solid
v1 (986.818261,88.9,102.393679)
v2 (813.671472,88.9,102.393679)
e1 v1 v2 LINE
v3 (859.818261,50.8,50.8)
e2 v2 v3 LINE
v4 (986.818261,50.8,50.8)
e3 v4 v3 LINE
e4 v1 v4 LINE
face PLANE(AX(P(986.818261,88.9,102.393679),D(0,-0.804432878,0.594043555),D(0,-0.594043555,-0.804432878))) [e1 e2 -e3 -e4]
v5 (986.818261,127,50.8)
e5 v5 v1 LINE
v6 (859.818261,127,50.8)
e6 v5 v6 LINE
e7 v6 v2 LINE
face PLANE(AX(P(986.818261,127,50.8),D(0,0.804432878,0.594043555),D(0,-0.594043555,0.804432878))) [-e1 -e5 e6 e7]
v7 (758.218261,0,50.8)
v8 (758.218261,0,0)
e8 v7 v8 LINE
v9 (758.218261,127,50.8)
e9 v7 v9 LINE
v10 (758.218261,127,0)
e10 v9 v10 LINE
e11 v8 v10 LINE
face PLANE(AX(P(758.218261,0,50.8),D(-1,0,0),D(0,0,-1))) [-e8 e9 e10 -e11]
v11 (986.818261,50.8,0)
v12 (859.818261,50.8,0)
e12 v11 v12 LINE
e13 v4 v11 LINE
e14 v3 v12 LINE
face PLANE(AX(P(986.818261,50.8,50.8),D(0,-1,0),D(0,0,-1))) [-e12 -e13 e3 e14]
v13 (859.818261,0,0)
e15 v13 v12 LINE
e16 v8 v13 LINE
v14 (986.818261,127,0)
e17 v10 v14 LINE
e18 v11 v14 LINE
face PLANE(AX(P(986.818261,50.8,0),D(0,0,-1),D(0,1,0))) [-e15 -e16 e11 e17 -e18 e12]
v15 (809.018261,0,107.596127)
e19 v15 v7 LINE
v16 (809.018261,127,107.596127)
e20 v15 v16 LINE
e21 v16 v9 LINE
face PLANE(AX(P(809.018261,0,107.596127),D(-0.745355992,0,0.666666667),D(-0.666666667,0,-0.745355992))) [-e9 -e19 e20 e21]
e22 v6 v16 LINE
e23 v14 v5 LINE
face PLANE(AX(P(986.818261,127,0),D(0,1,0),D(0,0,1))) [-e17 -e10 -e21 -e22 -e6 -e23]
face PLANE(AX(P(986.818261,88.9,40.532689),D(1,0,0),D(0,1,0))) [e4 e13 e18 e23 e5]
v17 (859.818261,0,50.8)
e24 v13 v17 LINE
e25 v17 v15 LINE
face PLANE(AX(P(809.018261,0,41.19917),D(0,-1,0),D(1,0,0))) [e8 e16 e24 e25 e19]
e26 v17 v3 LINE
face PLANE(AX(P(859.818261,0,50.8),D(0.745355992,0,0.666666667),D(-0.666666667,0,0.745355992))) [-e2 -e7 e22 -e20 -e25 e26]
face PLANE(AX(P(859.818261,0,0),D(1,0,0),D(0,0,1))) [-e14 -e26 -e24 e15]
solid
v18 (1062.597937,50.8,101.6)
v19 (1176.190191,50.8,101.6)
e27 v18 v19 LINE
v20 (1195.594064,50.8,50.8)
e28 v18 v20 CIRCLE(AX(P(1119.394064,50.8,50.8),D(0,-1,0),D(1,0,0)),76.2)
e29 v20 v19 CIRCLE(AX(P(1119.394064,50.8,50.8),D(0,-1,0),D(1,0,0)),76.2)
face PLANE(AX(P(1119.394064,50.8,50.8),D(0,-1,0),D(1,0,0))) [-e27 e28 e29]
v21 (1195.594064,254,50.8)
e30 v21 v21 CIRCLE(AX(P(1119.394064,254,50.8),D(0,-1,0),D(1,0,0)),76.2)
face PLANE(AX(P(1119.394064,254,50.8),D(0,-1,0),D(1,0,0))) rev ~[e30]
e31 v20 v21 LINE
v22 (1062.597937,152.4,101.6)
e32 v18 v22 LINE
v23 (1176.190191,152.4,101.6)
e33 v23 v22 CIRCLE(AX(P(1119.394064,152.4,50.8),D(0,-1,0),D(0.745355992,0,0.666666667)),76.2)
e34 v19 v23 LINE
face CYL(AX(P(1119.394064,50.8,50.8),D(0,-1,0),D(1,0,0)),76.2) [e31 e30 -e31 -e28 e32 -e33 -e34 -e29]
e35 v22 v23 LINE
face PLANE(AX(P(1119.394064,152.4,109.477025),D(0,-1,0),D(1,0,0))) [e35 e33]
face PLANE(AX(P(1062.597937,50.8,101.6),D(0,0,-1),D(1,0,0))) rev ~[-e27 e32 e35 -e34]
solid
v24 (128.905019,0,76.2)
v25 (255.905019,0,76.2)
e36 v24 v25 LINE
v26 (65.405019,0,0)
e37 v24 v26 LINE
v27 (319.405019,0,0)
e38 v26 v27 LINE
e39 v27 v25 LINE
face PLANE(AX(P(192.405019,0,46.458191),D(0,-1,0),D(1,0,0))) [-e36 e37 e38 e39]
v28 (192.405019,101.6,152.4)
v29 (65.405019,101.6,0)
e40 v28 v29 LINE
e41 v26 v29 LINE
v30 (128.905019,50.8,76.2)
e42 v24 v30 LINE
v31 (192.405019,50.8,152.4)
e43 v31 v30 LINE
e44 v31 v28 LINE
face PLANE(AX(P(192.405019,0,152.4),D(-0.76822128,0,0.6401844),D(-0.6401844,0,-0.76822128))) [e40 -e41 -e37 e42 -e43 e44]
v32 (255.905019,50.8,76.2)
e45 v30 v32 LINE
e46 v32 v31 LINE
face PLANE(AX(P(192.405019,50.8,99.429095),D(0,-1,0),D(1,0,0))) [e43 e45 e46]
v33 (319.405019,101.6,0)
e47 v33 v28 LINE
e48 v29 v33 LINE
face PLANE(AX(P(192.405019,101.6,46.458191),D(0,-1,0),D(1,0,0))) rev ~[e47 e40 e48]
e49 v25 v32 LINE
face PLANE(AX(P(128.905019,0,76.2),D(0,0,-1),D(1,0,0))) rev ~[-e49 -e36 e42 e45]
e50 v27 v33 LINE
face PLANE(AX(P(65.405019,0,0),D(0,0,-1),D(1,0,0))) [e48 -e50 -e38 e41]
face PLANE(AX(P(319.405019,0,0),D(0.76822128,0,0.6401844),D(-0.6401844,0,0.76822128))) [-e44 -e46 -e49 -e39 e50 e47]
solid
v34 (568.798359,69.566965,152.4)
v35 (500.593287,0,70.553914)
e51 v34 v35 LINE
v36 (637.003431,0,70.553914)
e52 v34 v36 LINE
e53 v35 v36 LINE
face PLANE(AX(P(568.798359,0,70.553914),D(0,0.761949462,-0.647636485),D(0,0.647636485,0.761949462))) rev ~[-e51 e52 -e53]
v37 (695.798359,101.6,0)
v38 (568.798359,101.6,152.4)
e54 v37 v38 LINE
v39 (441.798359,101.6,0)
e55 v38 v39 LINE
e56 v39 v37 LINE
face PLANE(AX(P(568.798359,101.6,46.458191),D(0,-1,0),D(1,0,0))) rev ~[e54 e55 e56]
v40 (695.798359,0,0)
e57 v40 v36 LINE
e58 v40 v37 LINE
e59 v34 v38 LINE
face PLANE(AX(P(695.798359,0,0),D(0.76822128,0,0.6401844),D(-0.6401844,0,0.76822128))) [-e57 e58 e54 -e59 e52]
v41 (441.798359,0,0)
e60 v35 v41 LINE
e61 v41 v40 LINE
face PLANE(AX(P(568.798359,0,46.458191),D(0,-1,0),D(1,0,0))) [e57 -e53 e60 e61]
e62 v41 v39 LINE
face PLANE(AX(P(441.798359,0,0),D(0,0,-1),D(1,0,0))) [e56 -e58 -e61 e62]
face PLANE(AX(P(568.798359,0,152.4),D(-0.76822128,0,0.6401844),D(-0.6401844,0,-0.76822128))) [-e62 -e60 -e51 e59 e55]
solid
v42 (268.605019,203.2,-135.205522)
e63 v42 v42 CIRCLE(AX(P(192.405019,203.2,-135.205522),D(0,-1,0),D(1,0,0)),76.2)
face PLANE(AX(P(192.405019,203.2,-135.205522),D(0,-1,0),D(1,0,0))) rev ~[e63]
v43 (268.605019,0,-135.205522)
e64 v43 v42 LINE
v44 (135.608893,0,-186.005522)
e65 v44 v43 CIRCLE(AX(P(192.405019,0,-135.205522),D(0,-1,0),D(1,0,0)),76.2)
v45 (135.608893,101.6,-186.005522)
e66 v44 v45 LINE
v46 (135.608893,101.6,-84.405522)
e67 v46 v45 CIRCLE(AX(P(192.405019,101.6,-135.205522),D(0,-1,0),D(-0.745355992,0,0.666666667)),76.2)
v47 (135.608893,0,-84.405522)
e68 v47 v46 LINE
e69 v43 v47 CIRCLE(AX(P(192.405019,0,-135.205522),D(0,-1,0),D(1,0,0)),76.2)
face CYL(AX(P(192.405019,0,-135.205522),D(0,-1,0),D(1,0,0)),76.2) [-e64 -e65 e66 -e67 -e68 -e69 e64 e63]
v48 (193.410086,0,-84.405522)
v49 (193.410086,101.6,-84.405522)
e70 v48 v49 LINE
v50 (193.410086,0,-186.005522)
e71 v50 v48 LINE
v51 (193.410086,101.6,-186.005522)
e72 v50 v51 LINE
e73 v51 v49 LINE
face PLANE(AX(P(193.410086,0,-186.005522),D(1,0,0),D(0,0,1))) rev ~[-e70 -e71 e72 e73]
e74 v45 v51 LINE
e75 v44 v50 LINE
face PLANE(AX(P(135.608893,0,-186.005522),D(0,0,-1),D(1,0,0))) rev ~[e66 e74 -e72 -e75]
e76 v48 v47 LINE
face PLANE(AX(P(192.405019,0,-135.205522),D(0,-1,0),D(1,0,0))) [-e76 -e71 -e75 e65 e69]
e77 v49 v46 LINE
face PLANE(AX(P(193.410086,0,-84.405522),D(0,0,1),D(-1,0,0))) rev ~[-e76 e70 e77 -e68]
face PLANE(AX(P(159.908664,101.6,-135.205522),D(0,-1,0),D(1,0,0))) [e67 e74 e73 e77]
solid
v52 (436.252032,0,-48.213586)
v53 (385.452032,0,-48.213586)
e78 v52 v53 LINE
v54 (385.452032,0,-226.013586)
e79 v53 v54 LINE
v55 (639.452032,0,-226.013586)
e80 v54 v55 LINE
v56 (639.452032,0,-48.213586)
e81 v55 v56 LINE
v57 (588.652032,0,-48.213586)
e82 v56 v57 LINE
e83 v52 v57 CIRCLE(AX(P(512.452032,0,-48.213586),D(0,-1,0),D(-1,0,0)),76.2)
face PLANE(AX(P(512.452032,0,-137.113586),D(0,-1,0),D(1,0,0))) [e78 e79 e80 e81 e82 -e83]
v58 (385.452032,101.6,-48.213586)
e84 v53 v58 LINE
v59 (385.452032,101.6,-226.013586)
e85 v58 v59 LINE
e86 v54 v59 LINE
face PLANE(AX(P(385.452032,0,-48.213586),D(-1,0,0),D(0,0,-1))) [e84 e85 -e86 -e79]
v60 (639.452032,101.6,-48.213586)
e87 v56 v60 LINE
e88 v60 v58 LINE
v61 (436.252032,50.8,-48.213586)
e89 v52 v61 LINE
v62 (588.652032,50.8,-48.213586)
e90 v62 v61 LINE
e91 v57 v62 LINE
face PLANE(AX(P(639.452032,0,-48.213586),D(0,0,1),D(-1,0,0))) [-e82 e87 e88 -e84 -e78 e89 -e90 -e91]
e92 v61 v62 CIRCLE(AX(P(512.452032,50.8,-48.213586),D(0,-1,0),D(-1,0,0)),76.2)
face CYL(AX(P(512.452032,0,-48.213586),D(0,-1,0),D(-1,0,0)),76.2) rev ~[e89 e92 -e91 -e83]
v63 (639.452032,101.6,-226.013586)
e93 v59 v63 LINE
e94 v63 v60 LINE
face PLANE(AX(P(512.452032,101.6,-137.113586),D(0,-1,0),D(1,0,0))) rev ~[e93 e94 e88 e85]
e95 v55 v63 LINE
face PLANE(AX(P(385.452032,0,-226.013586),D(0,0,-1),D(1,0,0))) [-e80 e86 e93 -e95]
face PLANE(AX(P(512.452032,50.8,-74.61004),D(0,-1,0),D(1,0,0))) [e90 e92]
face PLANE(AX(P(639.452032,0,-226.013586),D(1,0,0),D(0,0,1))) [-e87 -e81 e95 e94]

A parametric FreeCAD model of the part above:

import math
import FreeCAD as App
import Part
import Sketcher
from FreeCAD import Vector
Q = App.Units.Quantity


def add_polygon(sketch, points):
    """Adds a closed chain of lines whose ends are joined by coincident constraints."""
    first, n = sketch.GeometryCount, len(points)
    for a, b in zip(points, points[1:] + points[:1]):
        sketch.addGeometry(Part.LineSegment(App.Vector(*a, 0), App.Vector(*b, 0)), False)
    for i in range(n):
        sketch.addConstraint(Sketcher.Constraint("Coincident", first + i, 2, first + (i + 1) % n, 1))

doc = App.newDocument("Part")
body = doc.addObject("PartDesign::Body", "Body")

sketch1 = body.newObject("Sketcher::SketchObject", "Sketch")
sketch1.AttachmentSupport = (doc.getObject("XZ_Plane"), [""])
sketch1.MapMode = "FlatFace"
add_polygon(sketch1, [(192, 152), (65, 0), (319, 0)])
sketch1.addConstraint(Sketcher.Constraint("Horizontal", 1))
sketch1.addConstraint(Sketcher.Constraint("PointOnObject", 0, 2, -1))
sketch1.addConstraint(Sketcher.Constraint("Equal", 0, 2))
sketch1.addConstraint(Sketcher.Constraint("DistanceX", 1, 1, 1, 2, Q("10 in")))
sketch1.addConstraint(Sketcher.Constraint("DistanceY", -1, 1, 2, 2, Q("6 in")))
sketch1.addConstraint(Sketcher.Constraint("DistanceX", -1, 1, 0, 2, 65.405019))
pad1 = body.newObject("PartDesign::Pad", "Pad")
pad1.Profile = sketch1
pad1.Length = Q("4 in")
pad1.Reversed = True

sketch2 = body.newObject("Sketcher::SketchObject", "Sketch001")
sketch2.AttachmentSupport = (doc.getObject("XZ_Plane"), [""])
sketch2.MapMode = "FlatFace"
add_polygon(sketch2, [(192, 152), (129, 76), (256, 76)])
sketch2.addConstraint(Sketcher.Constraint("Horizontal", 1))
sketch2.addConstraint(Sketcher.Constraint("Equal", 0, 2))
sketch2.addConstraint(Sketcher.Constraint("DistanceX", 1, 1, 1, 2, Q("5 in")))
sketch2.addConstraint(Sketcher.Constraint("DistanceY", -1, 1, 0, 2, Q("3 in")))
sketch2.addConstraint(Sketcher.Constraint("DistanceY", -1, 1, 2, 2, Q("6 in")))
sketch2.addConstraint(Sketcher.Constraint("DistanceX", -1, 1, 0, 2, 128.905019))
pocket1 = body.newObject("PartDesign::Pocket", "Pocket")
pocket1.Profile = sketch2
pocket1.Length = Q("2 in")
body2 = doc.addObject("PartDesign::Body", "Body001")

sketch3 = body2.newObject("Sketcher::SketchObject", "Sketch002")
sketch3.AttachmentSupport = (doc.getObject("XZ_Plane001"), [""])
sketch3.MapMode = "FlatFace"
add_polygon(sketch3, [(569, 152), (442, 0), (696, 0)])
sketch3.addConstraint(Sketcher.Constraint("Horizontal", 1))
sketch3.addConstraint(Sketcher.Constraint("PointOnObject", 0, 2, -1))
sketch3.addConstraint(Sketcher.Constraint("Equal", 0, 2))
sketch3.addConstraint(Sketcher.Constraint("DistanceX", 1, 1, 1, 2, Q("10 in")))
sketch3.addConstraint(Sketcher.Constraint("DistanceY", -1, 1, 2, 2, Q("6 in")))
sketch3.addConstraint(Sketcher.Constraint("DistanceX", -1, 1, 0, 2, 441.798359))
pad2 = body2.newObject("PartDesign::Pad", "Pad001")
pad2.Profile = sketch3
pad2.Length = Q("4 in")
pad2.Reversed = True

sketch4 = body2.newObject("Sketcher::SketchObject", "Sketch003")
sketch4.AttachmentSupport = (doc.getObject("YZ_Plane001"), [""])
sketch4.MapMode = "FlatFace"
sketch4.AttachmentOffset = App.Placement(Vector(0, 0, 568.798359), App.Rotation())
add_polygon(sketch4, [(0, 152), (0, 71), (70, 152)])
sketch4.addConstraint(Sketcher.Constraint("Vertical", 0))
sketch4.addConstraint(Sketcher.Constraint("Horizontal", 2))
sketch4.addConstraint(Sketcher.Constraint("PointOnObject", 0, 2, -2))
sketch4.addConstraint(Sketcher.Constraint("DistanceY", -1, 1, 1, 2, Q("6 in")))
sketch4.addConstraint(Sketcher.Constraint("DistanceX", 2, 2, 2, 1, 69.566965))
sketch4.addConstraint(Sketcher.Constraint("DistanceY", 0, 2, 0, 1, 81.846086))
pocket2 = body2.newObject("PartDesign::Pocket", "Pocket001")
pocket2.Profile = sketch4
pocket2.Type = "ThroughAll"
pocket2.Midplane = True
body3 = doc.addObject("PartDesign::Body", "Body002")

sketch5 = body3.newObject("Sketcher::SketchObject", "Sketch004")
sketch5.AttachmentSupport = (doc.getObject("XZ_Plane002"), [""])
sketch5.MapMode = "FlatFace"
add_polygon(sketch5, [(758, 51), (758, 0), (860, 0), (860, 51), (809, 108)])
sketch5.addConstraint(Sketcher.Constraint("Vertical", 0))
sketch5.addConstraint(Sketcher.Constraint("Horizontal", 1))
sketch5.addConstraint(Sketcher.Constraint("Vertical", 2))
sketch5.addConstraint(Sketcher.Constraint("PointOnObject", 0, 2, -1))
sketch5.addConstraint(Sketcher.Constraint("Horizontal", 2, 2, 4, 2))
sketch5.addConstraint(Sketcher.Constraint("Equal", 3, 4))
sketch5.addConstraint(Sketcher.Constraint("DistanceX", 1, 1, 1, 2, Q("4 in")))
sketch5.addConstraint(Sketcher.Constraint("DistanceY", 0, 2, 0, 1, Q("2 in")))
sketch5.addConstraint(Sketcher.Constraint("Distance", 3, Q("3 in")))
sketch5.addConstraint(Sketcher.Constraint("DistanceX", -1, 1, 0, 2, 758.218261))
pad3 = body3.newObject("PartDesign::Pad", "Pad002")
pad3.Profile = sketch5
pad3.Length = Q("5 in")
pad3.Reversed = True

sketch6 = body3.newObject("Sketcher::SketchObject", "Sketch005")
sketch6.AttachmentSupport = (doc.getObject("YZ_Plane002"), [""])
sketch6.MapMode = "FlatFace"
sketch6.AttachmentOffset = App.Placement(Vector(0, 0, 986.818261), App.Rotation())
add_polygon(sketch6, [(51, 51), (51, 0), (127, 0), (127, 51), (89, 102)])
sketch6.addConstraint(Sketcher.Constraint("Vertical", 0))
sketch6.addConstraint(Sketcher.Constraint("Horizontal", 1))
sketch6.addConstraint(Sketcher.Constraint("Vertical", 2))
sketch6.addConstraint(Sketcher.Constraint("PointOnObject", 0, 2, -1))
sketch6.addConstraint(Sketcher.Constraint("Horizontal", 2, 2, 4, 2))
sketch6.addConstraint(Sketcher.Constraint("Equal", 3, 4))
sketch6.addConstraint(Sketcher.Constraint("DistanceX", 1, 1, 1, 2, Q("3 in")))
sketch6.addConstraint(Sketcher.Constraint("DistanceY", 0, 2, 0, 1, Q("2 in")))
sketch6.addConstraint(Sketcher.Constraint("DistanceX", -1, 1, 0, 2, Q("2 in")))
sketch6.addConstraint(Sketcher.Constraint("Distance", 3, 64.136711))
pad4 = body3.newObject("PartDesign::Pad", "Pad003")
pad4.Profile = sketch6
pad4.Length = Q("6.9 in")
pad4.Reversed = True
body4 = doc.addObject("PartDesign::Body", "Body003")

sketch7 = body4.newObject("Sketcher::SketchObject", "Sketch006")
sketch7.AttachmentSupport = (doc.getObject("XZ_Plane003"), [""])
sketch7.MapMode = "FlatFace"
sketch7.AttachmentOffset = App.Placement(Vector(0, 0, -2 * 25.4), App.Rotation())
sketch7.addGeometry(Part.Circle(Vector(1119, 51, 0), Vector(0, 0, 1), 76), False)
sketch7.addConstraint(Sketcher.Constraint("Diameter", 0, Q("6 in")))
sketch7.addConstraint(Sketcher.Constraint("DistanceY", -1, 1, 0, 3, Q("2 in")))
sketch7.addConstraint(Sketcher.Constraint("DistanceX", -1, 1, 0, 3, 1119.394064))
pad5 = body4.newObject("PartDesign::Pad", "Pad004")
pad5.Profile = sketch7
pad5.Length = Q("8 in")
pad5.Reversed = True

sketch8 = body4.newObject("Sketcher::SketchObject", "Sketch007")
sketch8.AttachmentSupport = (doc.getObject("XZ_Plane003"), [""])
sketch8.MapMode = "FlatFace"
sketch8.AttachmentOffset = App.Placement(Vector(0, 0, -2 * 25.4), App.Rotation())
sketch8.addGeometry(Part.ArcOfCircle(Part.Circle(Vector(1119, 51, 0), Vector(0, 0, 1), 76), math.radians(42), math.radians(138)), False)
sketch8.addGeometry(Part.LineSegment(Vector(1063, 102, 0), Vector(1176, 102, 0)), False)
sketch8.addConstraint(Sketcher.Constraint("Coincident", 0, 1, 1, 2))
sketch8.addConstraint(Sketcher.Constraint("Coincident", 1, 1, 0, 2))
sketch8.addConstraint(Sketcher.Constraint("Horizontal", 1))
sketch8.addConstraint(Sketcher.Constraint("Radius", 0, Q("3 in")))
sketch8.addConstraint(Sketcher.Constraint("DistanceY", -1, 1, 0, 3, Q("2 in")))
sketch8.addConstraint(Sketcher.Constraint("DistanceY", -1, 1, 0, 1, Q("4 in")))
sketch8.addConstraint(Sketcher.Constraint("DistanceX", -1, 1, 0, 1, 1176.190191))
pocket3 = body4.newObject("PartDesign::Pocket", "Pocket002")
pocket3.Profile = sketch8
pocket3.Length = Q("4 in")
body5 = doc.addObject("PartDesign::Body", "Body004")

sketch9 = body5.newObject("Sketcher::SketchObject", "Sketch008")
sketch9.AttachmentSupport = (doc.getObject("XZ_Plane004"), [""])
sketch9.MapMode = "FlatFace"
sketch9.addGeometry(Part.Circle(Vector(192, -135, 0), Vector(0, 0, 1), 76), False)
sketch9.addConstraint(Sketcher.Constraint("Diameter", 0, Q("6 in")))
sketch9.addConstraint(Sketcher.Constraint("DistanceX", -1, 1, 0, 3, 192.405019))
sketch9.addConstraint(Sketcher.Constraint("DistanceY", 0, 3, -1, 1, 135.205522))
pad6 = body5.newObject("PartDesign::Pad", "Pad005")
pad6.Profile = sketch9
pad6.Length = Q("8 in")
pad6.Reversed = True

sketch10 = body5.newObject("Sketcher::SketchObject", "Sketch009")
sketch10.AttachmentSupport = (doc.getObject("XZ_Plane004"), [""])
sketch10.MapMode = "FlatFace"
sketch10.addGeometry(Part.LineSegment(Vector(193, -84, 0), Vector(136, -84, 0)), False)
sketch10.addGeometry(Part.ArcOfCircle(Part.Circle(Vector(192, -135, 0), Vector(0, 0, 1), 76), math.radians(138), math.radians(222)), False)
sketch10.addGeometry(Part.LineSegment(Vector(136, -186, 0), Vector(193, -186, 0)), False)
sketch10.addGeometry(Part.LineSegment(Vector(193, -186, 0), Vector(193, -84, 0)), False)
sketch10.addConstraint(Sketcher.Constraint("Coincident", 0, 2, 1, 1))
sketch10.addConstraint(Sketcher.Constraint("Coincident", 1, 2, 2, 1))
sketch10.addConstraint(Sketcher.Constraint("Coincident", 2, 2, 3, 1))
sketch10.addConstraint(Sketcher.Constraint("Coincident", 3, 2, 0, 1))
sketch10.addConstraint(Sketcher.Constraint("Horizontal", 0))
sketch10.addConstraint(Sketcher.Constraint("Horizontal", 2))
sketch10.addConstraint(Sketcher.Constraint("Vertical", 3))
sketch10.addConstraint(Sketcher.Constraint("Vertical", 0, 2, 1, 2))
sketch10.addConstraint(Sketcher.Constraint("Radius", 1, Q("3 in")))
sketch10.addConstraint(Sketcher.Constraint("DistanceY", 3, 1, 3, 2, Q("4 in")))
sketch10.addConstraint(Sketcher.Constraint("DistanceX", 0, 2, 0, 1, 57.801193))
sketch10.addConstraint(Sketcher.Constraint("DistanceX", -1, 1, 1, 3, 192.405019))
sketch10.addConstraint(Sketcher.Constraint("DistanceY", 1, 3, -1, 1, 135.205522))
pocket4 = body5.newObject("PartDesign::Pocket", "Pocket003")
pocket4.Profile = sketch10
pocket4.Length = Q("4 in")
body6 = doc.addObject("PartDesign::Body", "Body005")

sketch11 = body6.newObject("Sketcher::SketchObject", "Sketch010")
sketch11.AttachmentSupport = (doc.getObject("XZ_Plane005"), [""])
sketch11.MapMode = "FlatFace"
add_polygon(sketch11, [(385, -48), (385, -226), (639, -226), (639, -48)])
sketch11.addConstraint(Sketcher.Constraint("Vertical", 0))
sketch11.addConstraint(Sketcher.Constraint("Horizontal", 1))
sketch11.addConstraint(Sketcher.Constraint("Vertical", 2))
sketch11.addConstraint(Sketcher.Constraint("Horizontal", 3))
sketch11.addConstraint(Sketcher.Constraint("DistanceX", 1, 1, 1, 2, Q("10 in")))
sketch11.addConstraint(Sketcher.Constraint("DistanceY", 0, 2, 0, 1, Q("7 in")))
sketch11.addConstraint(Sketcher.Constraint("DistanceX", -1, 1, 0, 2, 385.452032))
sketch11.addConstraint(Sketcher.Constraint("DistanceY", 0, 2, -1, 1, 226.013586))
pad7 = body6.newObject("PartDesign::Pad", "Pad006")
pad7.Profile = sketch11
pad7.Length = Q("4 in")
pad7.Reversed = True

sketch12 = body6.newObject("Sketcher::SketchObject", "Sketch011")
sketch12.AttachmentSupport = (doc.getObject("XZ_Plane005"), [""])
sketch12.MapMode = "FlatFace"
sketch12.addGeometry(Part.LineSegment(Vector(589, -48, 0), Vector(436, -48, 0)), False)
sketch12.addGeometry(Part.ArcOfCircle(Part.Circle(Vector(512, -48, 0), Vector(0, 0, 1), 76), math.radians(180), math.radians(360)), False)
sketch12.addConstraint(Sketcher.Constraint("Coincident", 0, 1, 1, 2))
sketch12.addConstraint(Sketcher.Constraint("Coincident", 1, 1, 0, 2))
sketch12.addConstraint(Sketcher.Constraint("Horizontal", 0))
sketch12.addConstraint(Sketcher.Constraint("Horizontal", 1, 3, 0, 1))
sketch12.addConstraint(Sketcher.Constraint("Radius", 1, Q("3 in")))
sketch12.addConstraint(Sketcher.Constraint("DistanceX", -1, 1, 1, 3, 512.452032))
sketch12.addConstraint(Sketcher.Constraint("DistanceY", 1, 3, -1, 1, 48.213586))
pocket5 = body6.newObject("PartDesign::Pocket", "Pocket004")
pocket5.Profile = sketch12
pocket5.Length = Q("2 in")

doc.recompute()
